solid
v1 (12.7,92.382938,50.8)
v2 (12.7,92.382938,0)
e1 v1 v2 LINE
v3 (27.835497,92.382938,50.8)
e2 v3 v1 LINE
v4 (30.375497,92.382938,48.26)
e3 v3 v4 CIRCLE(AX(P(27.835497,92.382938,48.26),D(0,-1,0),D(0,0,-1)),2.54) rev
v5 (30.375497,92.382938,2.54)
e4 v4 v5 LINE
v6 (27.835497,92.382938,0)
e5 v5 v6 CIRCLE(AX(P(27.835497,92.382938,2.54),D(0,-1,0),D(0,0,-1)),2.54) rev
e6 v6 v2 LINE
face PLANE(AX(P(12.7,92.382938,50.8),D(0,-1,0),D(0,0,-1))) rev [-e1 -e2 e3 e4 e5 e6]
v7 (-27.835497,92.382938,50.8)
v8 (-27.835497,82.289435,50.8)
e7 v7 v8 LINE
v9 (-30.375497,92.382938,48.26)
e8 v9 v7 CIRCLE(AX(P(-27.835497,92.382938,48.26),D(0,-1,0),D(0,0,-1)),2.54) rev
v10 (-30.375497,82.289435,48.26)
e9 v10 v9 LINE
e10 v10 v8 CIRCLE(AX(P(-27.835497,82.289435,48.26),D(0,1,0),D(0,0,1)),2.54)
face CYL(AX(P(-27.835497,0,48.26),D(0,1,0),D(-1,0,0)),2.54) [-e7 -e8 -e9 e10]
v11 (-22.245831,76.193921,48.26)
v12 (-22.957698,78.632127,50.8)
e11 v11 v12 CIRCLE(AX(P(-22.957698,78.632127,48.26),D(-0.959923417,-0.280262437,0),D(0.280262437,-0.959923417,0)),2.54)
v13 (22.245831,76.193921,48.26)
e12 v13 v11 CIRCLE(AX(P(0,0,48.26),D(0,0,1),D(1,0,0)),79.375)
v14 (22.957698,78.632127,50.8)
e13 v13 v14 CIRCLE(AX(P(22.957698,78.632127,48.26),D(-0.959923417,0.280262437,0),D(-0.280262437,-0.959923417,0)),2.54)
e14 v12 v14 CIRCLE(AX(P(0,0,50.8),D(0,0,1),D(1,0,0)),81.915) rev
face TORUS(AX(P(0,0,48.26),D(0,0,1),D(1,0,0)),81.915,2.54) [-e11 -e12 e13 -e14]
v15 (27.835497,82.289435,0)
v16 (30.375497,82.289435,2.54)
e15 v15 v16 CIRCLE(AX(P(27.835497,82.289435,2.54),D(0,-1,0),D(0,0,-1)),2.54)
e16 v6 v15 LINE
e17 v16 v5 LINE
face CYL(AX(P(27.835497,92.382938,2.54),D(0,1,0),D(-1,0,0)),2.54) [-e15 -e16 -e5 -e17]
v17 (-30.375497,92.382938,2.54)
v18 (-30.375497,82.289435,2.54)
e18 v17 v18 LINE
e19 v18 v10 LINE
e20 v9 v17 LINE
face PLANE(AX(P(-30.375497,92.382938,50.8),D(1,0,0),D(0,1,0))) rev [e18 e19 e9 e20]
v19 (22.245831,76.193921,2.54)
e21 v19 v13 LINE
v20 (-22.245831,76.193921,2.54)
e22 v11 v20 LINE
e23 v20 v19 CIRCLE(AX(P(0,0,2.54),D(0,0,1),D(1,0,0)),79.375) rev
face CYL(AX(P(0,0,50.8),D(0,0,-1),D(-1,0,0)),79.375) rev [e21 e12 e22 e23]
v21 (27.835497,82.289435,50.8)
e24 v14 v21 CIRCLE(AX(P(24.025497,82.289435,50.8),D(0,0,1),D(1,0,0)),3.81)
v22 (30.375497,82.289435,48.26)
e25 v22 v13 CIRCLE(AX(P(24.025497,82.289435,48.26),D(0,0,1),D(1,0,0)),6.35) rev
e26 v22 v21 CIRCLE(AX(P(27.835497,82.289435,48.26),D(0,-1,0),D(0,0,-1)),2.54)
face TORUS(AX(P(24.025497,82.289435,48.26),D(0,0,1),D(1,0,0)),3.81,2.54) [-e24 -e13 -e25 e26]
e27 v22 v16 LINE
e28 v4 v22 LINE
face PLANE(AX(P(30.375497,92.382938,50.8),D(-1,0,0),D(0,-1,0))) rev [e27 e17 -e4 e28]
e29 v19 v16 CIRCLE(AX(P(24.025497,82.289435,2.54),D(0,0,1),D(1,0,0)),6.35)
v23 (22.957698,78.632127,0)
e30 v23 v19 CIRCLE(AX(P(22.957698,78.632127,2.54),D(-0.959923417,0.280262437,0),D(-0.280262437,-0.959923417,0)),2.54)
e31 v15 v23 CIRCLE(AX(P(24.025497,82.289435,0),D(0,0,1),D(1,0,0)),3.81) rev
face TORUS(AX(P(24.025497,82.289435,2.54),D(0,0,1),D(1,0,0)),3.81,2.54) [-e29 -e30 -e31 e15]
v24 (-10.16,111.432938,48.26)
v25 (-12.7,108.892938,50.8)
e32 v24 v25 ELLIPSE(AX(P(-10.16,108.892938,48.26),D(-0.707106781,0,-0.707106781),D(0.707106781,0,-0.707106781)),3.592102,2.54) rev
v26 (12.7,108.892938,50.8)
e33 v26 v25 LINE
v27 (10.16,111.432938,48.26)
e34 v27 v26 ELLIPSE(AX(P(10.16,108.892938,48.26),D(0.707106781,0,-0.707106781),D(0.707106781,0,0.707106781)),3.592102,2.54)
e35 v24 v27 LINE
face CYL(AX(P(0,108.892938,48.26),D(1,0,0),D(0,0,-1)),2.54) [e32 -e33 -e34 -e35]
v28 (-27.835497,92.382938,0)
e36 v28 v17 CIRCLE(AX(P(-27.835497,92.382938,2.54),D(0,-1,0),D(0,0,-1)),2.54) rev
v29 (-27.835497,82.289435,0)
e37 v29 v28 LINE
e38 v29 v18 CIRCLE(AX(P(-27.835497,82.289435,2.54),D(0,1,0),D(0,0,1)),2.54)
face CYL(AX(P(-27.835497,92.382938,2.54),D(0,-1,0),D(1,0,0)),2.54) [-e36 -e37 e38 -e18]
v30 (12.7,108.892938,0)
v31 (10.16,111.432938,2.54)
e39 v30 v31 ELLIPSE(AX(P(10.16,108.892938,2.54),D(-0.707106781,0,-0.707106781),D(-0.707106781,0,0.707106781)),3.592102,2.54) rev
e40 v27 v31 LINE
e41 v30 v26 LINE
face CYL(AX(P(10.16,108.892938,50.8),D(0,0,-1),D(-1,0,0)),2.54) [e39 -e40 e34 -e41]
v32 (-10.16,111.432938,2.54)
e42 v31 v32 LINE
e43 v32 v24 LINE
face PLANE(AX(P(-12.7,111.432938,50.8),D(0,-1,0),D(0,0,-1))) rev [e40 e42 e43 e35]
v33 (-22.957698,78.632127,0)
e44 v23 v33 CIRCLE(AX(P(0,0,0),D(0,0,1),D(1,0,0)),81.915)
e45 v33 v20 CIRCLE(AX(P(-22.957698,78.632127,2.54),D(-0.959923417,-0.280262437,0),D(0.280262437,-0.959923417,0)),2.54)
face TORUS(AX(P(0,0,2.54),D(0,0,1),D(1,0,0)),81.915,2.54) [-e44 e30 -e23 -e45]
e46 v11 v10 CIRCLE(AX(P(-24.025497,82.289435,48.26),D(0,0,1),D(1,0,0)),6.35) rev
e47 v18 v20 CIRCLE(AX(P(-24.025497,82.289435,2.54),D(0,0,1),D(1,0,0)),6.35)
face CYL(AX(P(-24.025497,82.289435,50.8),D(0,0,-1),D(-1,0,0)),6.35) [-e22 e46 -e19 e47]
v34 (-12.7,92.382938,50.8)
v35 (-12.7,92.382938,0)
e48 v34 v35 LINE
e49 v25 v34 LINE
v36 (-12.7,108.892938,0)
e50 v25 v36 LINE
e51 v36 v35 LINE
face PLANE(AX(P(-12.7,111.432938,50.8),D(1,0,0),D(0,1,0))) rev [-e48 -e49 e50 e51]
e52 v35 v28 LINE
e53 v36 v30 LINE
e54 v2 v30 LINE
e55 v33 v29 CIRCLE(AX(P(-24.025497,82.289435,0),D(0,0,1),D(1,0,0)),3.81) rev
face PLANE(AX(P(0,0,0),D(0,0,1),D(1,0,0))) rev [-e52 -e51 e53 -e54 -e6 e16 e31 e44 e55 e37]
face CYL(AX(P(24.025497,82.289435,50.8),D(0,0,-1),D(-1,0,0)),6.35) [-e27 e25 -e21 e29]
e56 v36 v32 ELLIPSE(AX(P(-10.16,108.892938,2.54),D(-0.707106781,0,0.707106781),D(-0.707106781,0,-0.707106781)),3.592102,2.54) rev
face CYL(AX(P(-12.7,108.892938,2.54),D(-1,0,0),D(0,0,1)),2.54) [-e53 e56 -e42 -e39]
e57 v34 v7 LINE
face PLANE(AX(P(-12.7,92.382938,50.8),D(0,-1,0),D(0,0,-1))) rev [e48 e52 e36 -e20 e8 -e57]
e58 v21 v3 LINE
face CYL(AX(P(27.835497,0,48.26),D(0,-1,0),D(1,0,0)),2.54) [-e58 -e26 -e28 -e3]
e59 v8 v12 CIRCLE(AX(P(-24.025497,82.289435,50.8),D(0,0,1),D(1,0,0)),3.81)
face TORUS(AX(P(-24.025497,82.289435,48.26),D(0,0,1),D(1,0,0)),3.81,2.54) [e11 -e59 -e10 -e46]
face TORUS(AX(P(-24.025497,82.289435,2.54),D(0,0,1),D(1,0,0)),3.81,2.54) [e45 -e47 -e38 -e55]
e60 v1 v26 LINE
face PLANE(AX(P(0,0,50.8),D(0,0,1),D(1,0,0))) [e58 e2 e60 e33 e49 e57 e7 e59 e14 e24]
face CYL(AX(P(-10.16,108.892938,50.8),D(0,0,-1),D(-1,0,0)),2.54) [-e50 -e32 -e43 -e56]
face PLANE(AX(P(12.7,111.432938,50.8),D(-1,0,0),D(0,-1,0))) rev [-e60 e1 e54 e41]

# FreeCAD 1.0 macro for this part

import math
import FreeCAD as App
import Part
import Sketcher
Q = App.Units.Quantity


def edges_at(feature, points):
    """Names of the edges that pass closest to the given points."""
    edges = feature.Shape.Edges
    near = lambda p: min(range(len(edges)), key=lambda i: edges[i].distToShape(Part.Vertex(*p))[0])
    return sorted({f"Edge{near(p) + 1}" for p in points})

doc = App.newDocument("Part")
body = doc.addObject("PartDesign::Body", "Body")

sketch1 = doc.addObject("Sketcher::SketchObject", "Sketch")
body.addObject(sketch1)
sketch1.AttachmentSupport = (doc.XY_Plane, [""])
sketch1.MapMode = "FlatFace"
sketch1.addGeometry(Part.LineSegment(App.Vector(13, 111, 0), App.Vector(-13, 111, 0)), False)
sketch1.addGeometry(Part.LineSegment(App.Vector(-13, 111, 0), App.Vector(-13, 92, 0)), False)
sketch1.addGeometry(Part.LineSegment(App.Vector(-13, 92, 0), App.Vector(-30, 92, 0)), False)
sketch1.addGeometry(Part.LineSegment(App.Vector(-30, 92, 0), App.Vector(-30, 73, 0)), False)
sketch1.addGeometry(Part.ArcOfCircle(Part.Circle(App.Vector(0, 0, 0), App.Vector(0, 0, 1), 79), math.radians(67), math.radians(113)), False)
sketch1.addGeometry(Part.LineSegment(App.Vector(30, 73, 0), App.Vector(30, 92, 0)), False)
sketch1.addGeometry(Part.LineSegment(App.Vector(30, 92, 0), App.Vector(13, 92, 0)), False)
sketch1.addGeometry(Part.LineSegment(App.Vector(13, 92, 0), App.Vector(13, 111, 0)), False)
sketch1.addConstraint(Sketcher.Constraint("Coincident", 0, 2, 1, 1))
sketch1.addConstraint(Sketcher.Constraint("Coincident", 1, 2, 2, 1))
sketch1.addConstraint(Sketcher.Constraint("Coincident", 2, 2, 3, 1))
sketch1.addConstraint(Sketcher.Constraint("Coincident", 3, 2, 4, 2))
sketch1.addConstraint(Sketcher.Constraint("Coincident", 4, 1, 5, 1))
sketch1.addConstraint(Sketcher.Constraint("Coincident", 5, 2, 6, 1))
sketch1.addConstraint(Sketcher.Constraint("Coincident", 6, 2, 7, 1))
sketch1.addConstraint(Sketcher.Constraint("Coincident", 7, 2, 0, 1))
sketch1.addConstraint(Sketcher.Constraint("Horizontal", 0))
sketch1.addConstraint(Sketcher.Constraint("Vertical", 1))
sketch1.addConstraint(Sketcher.Constraint("Horizontal", 2))
sketch1.addConstraint(Sketcher.Constraint("Vertical", 3))
sketch1.addConstraint(Sketcher.Constraint("Vertical", 5))
sketch1.addConstraint(Sketcher.Constraint("Horizontal", 6))
sketch1.addConstraint(Sketcher.Constraint("Vertical", 7))
sketch1.addConstraint(Sketcher.Constraint("Coincident", 4, 3, -1, 1))
sketch1.addConstraint(Sketcher.Constraint("Symmetric", 2, 2, 5, 2, -2))
sketch1.addConstraint(Sketcher.Constraint("Equal", 2, 6))
sketch1.addConstraint(Sketcher.Constraint("Equal", 1, 3))
sketch1.addConstraint(Sketcher.Constraint("DistanceX", 0, 2, 0, 1, Q("1 in")))
sketch1.addConstraint(Sketcher.Constraint("Radius", 4, Q("3.125 in")))
sketch1.addConstraint(Sketcher.Constraint("DistanceY", 1, 2, 1, 1, Q("0.75 in")))
sketch1.addConstraint(Sketcher.Constraint("DistanceX", 2, 2, 2, 1, Q("17.675497 mm")))
pad1 = doc.addObject("PartDesign::Pad", "Pad")
body.addObject(pad1)
pad1.Profile = sketch1
pad1.Length = Q("2 in")
doc.recompute()

fillet = doc.addObject("PartDesign::Fillet", "Fillet")
body.addObject(fillet)
fillet.Base = (pad1, edges_at(pad1, [(30.375, 73.333, 25.4), (-30.375, 73.333, 25.4)]))
fillet.Radius = Q("0.25 in")
doc.recompute()

fillet2 = doc.addObject("PartDesign::Fillet", "Fillet001")
body.addObject(fillet2)
fillet2.Base = (fillet, edges_at(fillet, [
    (-12.7, 111.433, 25.4),
    (12.7, 111.433, 25.4),
    (0, 111.433, 50.8),
    (0, 111.433, 0),
]))
fillet2.Radius = Q("0.1 in")
doc.recompute()

fillet3 = doc.addObject("PartDesign::Fillet", "Fillet002")
body.addObject(fillet3)
fillet3.Base = (fillet2, edges_at(fillet2, [
    (0, 79.375, 50.8),
    (30.375, 87.336, 50.8),
    (27.835, 77.209, 50.8),
    (-27.835, 77.209, 50.8),
    (-30.375, 87.336, 50.8),
]))
fillet3.Radius = Q("0.1 in")
doc.recompute()

fillet4 = doc.addObject("PartDesign::Fillet", "Fillet003")
body.addObject(fillet4)
fillet4.Base = (fillet3, edges_at(fillet3, [
    (-30.375, 87.336, 0),
    (0, 79.375, 0),
    (30.375, 87.336, 0),
    (27.835, 77.209, 0),
    (-27.835, 77.209, 0),
]))
fillet4.Radius = Q("0.1 in")

doc.recompute()
